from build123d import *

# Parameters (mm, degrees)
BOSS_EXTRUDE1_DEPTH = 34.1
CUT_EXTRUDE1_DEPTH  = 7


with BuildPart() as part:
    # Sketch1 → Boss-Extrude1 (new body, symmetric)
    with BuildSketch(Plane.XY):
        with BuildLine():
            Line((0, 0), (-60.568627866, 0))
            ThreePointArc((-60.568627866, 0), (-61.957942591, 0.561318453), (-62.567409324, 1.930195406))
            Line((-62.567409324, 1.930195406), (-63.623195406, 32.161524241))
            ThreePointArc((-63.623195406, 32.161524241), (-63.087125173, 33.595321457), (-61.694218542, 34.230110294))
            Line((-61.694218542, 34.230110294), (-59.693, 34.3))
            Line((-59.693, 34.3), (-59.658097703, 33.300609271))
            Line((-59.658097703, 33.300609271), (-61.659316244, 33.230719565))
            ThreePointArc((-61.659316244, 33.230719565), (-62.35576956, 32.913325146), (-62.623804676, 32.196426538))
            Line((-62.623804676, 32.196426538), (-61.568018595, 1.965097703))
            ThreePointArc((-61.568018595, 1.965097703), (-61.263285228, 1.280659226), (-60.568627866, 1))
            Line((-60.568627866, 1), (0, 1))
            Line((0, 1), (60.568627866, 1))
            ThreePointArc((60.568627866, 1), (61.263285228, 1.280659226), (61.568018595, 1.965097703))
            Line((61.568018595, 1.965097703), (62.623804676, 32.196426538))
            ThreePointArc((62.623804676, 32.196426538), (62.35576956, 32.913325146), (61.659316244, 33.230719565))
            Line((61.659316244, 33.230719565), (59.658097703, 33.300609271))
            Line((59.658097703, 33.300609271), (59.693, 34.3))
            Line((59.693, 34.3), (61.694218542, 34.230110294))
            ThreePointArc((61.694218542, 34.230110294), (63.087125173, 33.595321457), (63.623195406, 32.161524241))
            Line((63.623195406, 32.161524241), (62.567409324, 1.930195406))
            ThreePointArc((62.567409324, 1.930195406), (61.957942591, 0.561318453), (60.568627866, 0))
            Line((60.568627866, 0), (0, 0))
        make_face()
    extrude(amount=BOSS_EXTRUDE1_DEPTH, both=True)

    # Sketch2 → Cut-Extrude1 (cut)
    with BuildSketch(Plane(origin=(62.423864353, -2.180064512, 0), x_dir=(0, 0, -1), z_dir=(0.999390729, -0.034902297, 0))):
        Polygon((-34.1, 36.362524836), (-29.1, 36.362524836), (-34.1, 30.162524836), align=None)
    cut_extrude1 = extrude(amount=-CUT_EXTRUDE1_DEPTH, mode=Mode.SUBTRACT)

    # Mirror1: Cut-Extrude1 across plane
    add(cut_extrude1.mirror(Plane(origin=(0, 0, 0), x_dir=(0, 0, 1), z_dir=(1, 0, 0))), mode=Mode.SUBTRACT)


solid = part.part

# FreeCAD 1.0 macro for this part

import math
import FreeCAD as App
import Part
import Sketcher

doc = App.newDocument("Part")
body = doc.addObject("PartDesign::Body", "Body")

# Sketch on XY plane
sketch1 = doc.addObject("Sketcher::SketchObject", "Sketch")
body.addObject(sketch1)
sketch1.AttachmentSupport = (doc.XY_Plane, [""])
sketch1.MapMode = "FlatFace"
sketch1.addGeometry([
    Part.ArcOfCircle(Part.Circle(App.Vector(-60.6, 2, 0), App.Vector(0, 0, 1), 2), math.radians(-178), math.radians(-90)),  # 0
    Part.LineSegment(App.Vector(-60.6, 0, 0), App.Vector(60.6, 0, 0)),  # 1
    Part.ArcOfCircle(Part.Circle(App.Vector(60.6, 2, 0), App.Vector(0, 0, 1), 2), math.radians(-90), math.radians(-2)),  # 2
    Part.LineSegment(App.Vector(62.6, 1.9, 0), App.Vector(63.6, 32.2, 0)),  # 3
    Part.ArcOfCircle(Part.Circle(App.Vector(61.6, 32.2, 0), App.Vector(0, 0, 1), 2), math.radians(-2), math.radians(88)),  # 4
    Part.LineSegment(App.Vector(61.7, 34.2, 0), App.Vector(59.7, 34.3, 0)),  # 5
    Part.LineSegment(App.Vector(59.7, 34.3, 0), App.Vector(59.7, 33.3, 0)),  # 6
    Part.LineSegment(App.Vector(59.7, 33.3, 0), App.Vector(61.7, 33.2, 0)),  # 7
    Part.ArcOfCircle(Part.Circle(App.Vector(61.6, 32.2, 0), App.Vector(0, 0, 1), 1), math.radians(-2), math.radians(88)),  # 8
    Part.LineSegment(App.Vector(62.6, 32.2, 0), App.Vector(61.6, 2, 0)),  # 9
    Part.ArcOfCircle(Part.Circle(App.Vector(60.6, 2, 0), App.Vector(0, 0, 1), 1), math.radians(-90), math.radians(-2)),  # 10
    Part.LineSegment(App.Vector(60.6, 1, 0), App.Vector(-60.6, 1, 0)),  # 11
    Part.ArcOfCircle(Part.Circle(App.Vector(-60.6, 2, 0), App.Vector(0, 0, 1), 1), math.radians(-178), math.radians(-90)),  # 12
    Part.LineSegment(App.Vector(-61.6, 2, 0), App.Vector(-62.6, 32.2, 0)),  # 13
    Part.ArcOfCircle(Part.Circle(App.Vector(-61.6, 32.2, 0), App.Vector(0, 0, 1), 1), math.radians(92), math.radians(182)),  # 14
    Part.LineSegment(App.Vector(-61.7, 33.2, 0), App.Vector(-59.7, 33.3, 0)),  # 15
    Part.LineSegment(App.Vector(-59.7, 33.3, 0), App.Vector(-59.7, 34.3, 0)),  # 16
    Part.LineSegment(App.Vector(-59.7, 34.3, 0), App.Vector(-61.7, 34.2, 0)),  # 17
    Part.ArcOfCircle(Part.Circle(App.Vector(-61.6, 32.2, 0), App.Vector(0, 0, 1), 2), math.radians(92), math.radians(182)),  # 18
    Part.LineSegment(App.Vector(-63.6, 32.2, 0), App.Vector(-62.6, 1.9, 0)),  # 19
], False)
sketch1.addConstraint([
    Sketcher.Constraint("Tangent", 0, 2, 1, 1),
    Sketcher.Constraint("Tangent", 1, 2, 2, 1),
    Sketcher.Constraint("Tangent", 2, 2, 3, 1),
    Sketcher.Constraint("Tangent", 3, 2, 4, 1),
    Sketcher.Constraint("Tangent", 4, 2, 5, 1),
    Sketcher.Constraint("Coincident", 5, 2, 6, 1),
    Sketcher.Constraint("Coincident", 6, 2, 7, 1),
    Sketcher.Constraint("Tangent", 7, 2, 8, 2),
    Sketcher.Constraint("Tangent", 8, 1, 9, 1),
    Sketcher.Constraint("Tangent", 9, 2, 10, 2),
    Sketcher.Constraint("Tangent", 10, 1, 11, 1),
    Sketcher.Constraint("Tangent", 11, 2, 12, 2),
    Sketcher.Constraint("Tangent", 12, 1, 13, 1),
    Sketcher.Constraint("Tangent", 13, 2, 14, 2),
    Sketcher.Constraint("Tangent", 14, 1, 15, 1),
    Sketcher.Constraint("Coincident", 15, 2, 16, 1),
    Sketcher.Constraint("Coincident", 16, 2, 17, 1),
    Sketcher.Constraint("Tangent", 17, 2, 18, 1),
    Sketcher.Constraint("Tangent", 18, 2, 19, 1),
    Sketcher.Constraint("Tangent", 19, 2, 0, 1),
    Sketcher.Constraint("Horizontal", 1),
    Sketcher.Constraint("Horizontal", 11),
    Sketcher.Constraint("Coincident", 8, 3, 4, 3),
    Sketcher.Constraint("Coincident", 10, 3, 2, 3),
    Sketcher.Constraint("Coincident", 12, 3, 0, 3),
    Sketcher.Constraint("Coincident", 18, 3, 14, 3),
    Sketcher.Constraint("Equal", 0, 2),
    Sketcher.Constraint("Equal", 2, 4),
    Sketcher.Constraint("Equal", 8, 10),
    Sketcher.Constraint("Equal", 12, 14),
    Sketcher.Constraint("Equal", 4, 18),
    Sketcher.Constraint("Symmetric", 0, 2, 1, 2, -1, 1),
    Sketcher.Constraint("Symmetric", 4, 3, 14, 3, -2),
    Sketcher.Constraint("Symmetric", 6, 2, 15, 2, -2),
    Sketcher.Constraint("Symmetric", 5, 2, 16, 2, -2),
    Sketcher.Constraint("Perpendicular", 3, 5),
    Sketcher.Constraint("Perpendicular", 5, 6),
    Sketcher.Constraint("Perpendicular", 6, 7),
    Sketcher.Constraint("Radius", 0, 2.0),
    Sketcher.Constraint("Radius", 8, 1.0),
    Sketcher.Constraint("DistanceY", -1, 1, 5, 2, 34.3),
    Sketcher.Constraint("DistanceX", -1, 1, 5, 2, 59.693),
    Sketcher.Constraint("DistanceY", 6, 2, 4, 2, 0.929501),
    Sketcher.Constraint("Distance", 3, 30.249759),
])
pad1 = doc.addObject("PartDesign::Pad", "Pad")
body.addObject(pad1)
pad1.Profile = sketch1
pad1.Length = 68.2
pad1.Midplane = True

# Sketch on an angled plane
sketch2 = doc.addObject("Sketcher::SketchObject", "Sketch001")
body.addObject(sketch2)
sketch2.Placement = App.Placement(App.Vector(62.423864, -2.180065, 0), App.Rotation(App.Vector(0, 0, -1), App.Vector(0.034902297, 0.999390729, 0), App.Vector(0.999390729, -0.034902297, 0), "ZXY"))
sketch2.addGeometry([
    Part.LineSegment(App.Vector(-29, 36, 0), App.Vector(-34, 36, 0)),
    Part.LineSegment(App.Vector(-34, 36, 0), App.Vector(-34, 30, 0)),
    Part.LineSegment(App.Vector(-34, 30, 0), App.Vector(-29, 36, 0)),
], False)
sketch2.addConstraint([
    Sketcher.Constraint("Coincident", 0, 2, 1, 1),
    Sketcher.Constraint("Coincident", 1, 2, 2, 1),
    Sketcher.Constraint("Coincident", 2, 2, 0, 1),
    Sketcher.Constraint("Horizontal", 0),
    Sketcher.Constraint("Vertical", 1),
    Sketcher.Constraint("DistanceX", 0, 2, 0, 1, 5.0),
    Sketcher.Constraint("DistanceY", 1, 2, 1, 1, 6.2),
    Sketcher.Constraint("DistanceX", 0, 2, -1, 1, 34.1),
    Sketcher.Constraint("DistanceY", -1, 1, 0, 2, 36.362525),
])
pocket1 = doc.addObject("PartDesign::Pocket", "Pocket")
body.addObject(pocket1)
pocket1.Profile = sketch2
pocket1.Length = 7
doc.recompute()

mirrored = doc.addObject("PartDesign::Mirrored", "Mirrored")
body.addObject(mirrored)
mirrored.Originals = [pocket1]
mirrored.MirrorPlane = (doc.YZ_Plane, [""])
body.Tip = mirrored

doc.recompute()
